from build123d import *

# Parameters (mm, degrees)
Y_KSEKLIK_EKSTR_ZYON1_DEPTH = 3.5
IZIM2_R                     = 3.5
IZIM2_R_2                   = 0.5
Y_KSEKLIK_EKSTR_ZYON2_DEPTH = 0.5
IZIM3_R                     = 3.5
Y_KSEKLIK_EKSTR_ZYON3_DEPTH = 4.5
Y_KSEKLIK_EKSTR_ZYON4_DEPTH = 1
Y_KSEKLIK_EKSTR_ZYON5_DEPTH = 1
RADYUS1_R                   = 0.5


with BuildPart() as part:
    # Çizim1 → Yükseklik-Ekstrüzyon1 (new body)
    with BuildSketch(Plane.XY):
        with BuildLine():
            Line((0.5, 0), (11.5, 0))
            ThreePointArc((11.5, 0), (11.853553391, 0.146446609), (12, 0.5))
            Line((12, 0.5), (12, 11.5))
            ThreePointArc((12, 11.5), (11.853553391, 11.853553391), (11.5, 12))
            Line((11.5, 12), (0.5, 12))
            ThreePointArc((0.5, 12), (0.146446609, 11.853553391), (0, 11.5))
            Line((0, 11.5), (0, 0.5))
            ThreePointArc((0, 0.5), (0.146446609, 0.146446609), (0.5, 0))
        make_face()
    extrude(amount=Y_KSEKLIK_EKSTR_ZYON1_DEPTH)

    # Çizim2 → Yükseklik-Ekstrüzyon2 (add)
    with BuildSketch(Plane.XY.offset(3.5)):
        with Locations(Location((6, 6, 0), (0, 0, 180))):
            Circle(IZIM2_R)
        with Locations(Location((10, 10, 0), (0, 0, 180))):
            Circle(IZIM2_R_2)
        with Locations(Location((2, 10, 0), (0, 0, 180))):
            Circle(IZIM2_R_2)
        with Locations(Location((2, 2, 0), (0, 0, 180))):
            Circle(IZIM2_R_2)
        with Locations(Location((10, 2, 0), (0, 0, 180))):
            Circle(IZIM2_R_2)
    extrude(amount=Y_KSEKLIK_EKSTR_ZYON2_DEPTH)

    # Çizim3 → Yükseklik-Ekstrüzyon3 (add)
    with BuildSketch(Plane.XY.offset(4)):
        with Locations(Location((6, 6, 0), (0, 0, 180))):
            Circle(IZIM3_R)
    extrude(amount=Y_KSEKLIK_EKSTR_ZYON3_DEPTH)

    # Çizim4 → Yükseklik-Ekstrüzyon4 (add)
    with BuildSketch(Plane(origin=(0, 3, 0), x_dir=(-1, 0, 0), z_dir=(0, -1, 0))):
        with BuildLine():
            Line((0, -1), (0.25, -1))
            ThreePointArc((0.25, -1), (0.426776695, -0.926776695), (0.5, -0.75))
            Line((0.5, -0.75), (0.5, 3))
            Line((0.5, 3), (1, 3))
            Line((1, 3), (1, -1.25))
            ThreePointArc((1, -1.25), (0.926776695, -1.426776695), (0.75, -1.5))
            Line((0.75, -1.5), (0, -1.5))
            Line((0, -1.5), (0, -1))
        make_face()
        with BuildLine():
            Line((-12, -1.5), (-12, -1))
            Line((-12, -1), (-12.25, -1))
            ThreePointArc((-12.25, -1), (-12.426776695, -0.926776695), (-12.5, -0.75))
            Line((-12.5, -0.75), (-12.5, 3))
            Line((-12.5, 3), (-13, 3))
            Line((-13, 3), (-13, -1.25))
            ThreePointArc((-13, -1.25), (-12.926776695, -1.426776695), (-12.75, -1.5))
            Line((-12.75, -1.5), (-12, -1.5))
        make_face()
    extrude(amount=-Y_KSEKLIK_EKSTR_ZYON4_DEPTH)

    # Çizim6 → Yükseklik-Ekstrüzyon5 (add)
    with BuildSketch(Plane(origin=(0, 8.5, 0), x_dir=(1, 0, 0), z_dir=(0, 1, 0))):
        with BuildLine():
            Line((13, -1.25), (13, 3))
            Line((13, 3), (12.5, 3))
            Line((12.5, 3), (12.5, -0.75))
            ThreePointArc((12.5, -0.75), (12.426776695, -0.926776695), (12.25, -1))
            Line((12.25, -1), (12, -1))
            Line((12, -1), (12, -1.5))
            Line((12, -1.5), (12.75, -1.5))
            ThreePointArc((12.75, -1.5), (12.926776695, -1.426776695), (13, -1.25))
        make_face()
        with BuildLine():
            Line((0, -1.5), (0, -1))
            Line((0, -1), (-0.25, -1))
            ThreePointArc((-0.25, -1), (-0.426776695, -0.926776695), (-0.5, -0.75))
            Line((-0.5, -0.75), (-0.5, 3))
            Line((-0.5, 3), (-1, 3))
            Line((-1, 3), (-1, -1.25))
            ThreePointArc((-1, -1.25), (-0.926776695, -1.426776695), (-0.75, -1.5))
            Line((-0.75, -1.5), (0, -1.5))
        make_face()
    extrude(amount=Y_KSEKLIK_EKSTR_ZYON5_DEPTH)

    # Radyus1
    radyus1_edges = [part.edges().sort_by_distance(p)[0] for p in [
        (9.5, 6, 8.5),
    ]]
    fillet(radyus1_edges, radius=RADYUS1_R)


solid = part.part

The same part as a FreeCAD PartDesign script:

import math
import FreeCAD as App
import Part
import Sketcher

V = App.Vector


def edges_at(feature, points):
    """Names of the edges that pass closest to the given points."""
    edges = feature.Shape.Edges
    near = lambda p: min(range(len(edges)), key=lambda i: edges[i].distToShape(Part.Vertex(*p))[0])
    return sorted({f"Edge{near(p) + 1}" for p in points})

doc = App.newDocument("Part")
body = doc.addObject("PartDesign::Body", "Body")

# Sketch on XY plane
sketch1 = doc.addObject("Sketcher::SketchObject", "Sketch")
body.addObject(sketch1)
sketch1.AttachmentSupport = (doc.XY_Plane, [""])
sketch1.MapMode = "FlatFace"
sketch1.addGeometry([
    Part.LineSegment(V(0.5, 0, 0), V(11.5, 0, 0)),  # 0
    Part.ArcOfCircle(Part.Circle(V(11.5, 0.5, 0), V(0, 0, 1), 0.5), math.radians(-90), math.radians(0)),  # 1
    Part.LineSegment(V(12, 0.5, 0), V(12, 11.5, 0)),  # 2
    Part.ArcOfCircle(Part.Circle(V(11.5, 11.5, 0), V(0, 0, 1), 0.5), math.radians(0), math.radians(90)),  # 3
    Part.LineSegment(V(11.5, 12, 0), V(0.5, 12, 0)),  # 4
    Part.ArcOfCircle(Part.Circle(V(0.5, 11.5, 0), V(0, 0, 1), 0.5), math.radians(90), math.radians(180)),  # 5
    Part.LineSegment(V(0, 11.5, 0), V(0, 0.5, 0)),  # 6
    Part.ArcOfCircle(Part.Circle(V(0.5, 0.5, 0), V(0, 0, 1), 0.5), math.radians(180), math.radians(270)),  # 7
], False)
sketch1.addConstraint([
    Sketcher.Constraint("Tangent", 0, 2, 1, 1),
    Sketcher.Constraint("Tangent", 1, 2, 2, 1),
    Sketcher.Constraint("Tangent", 2, 2, 3, 1),
    Sketcher.Constraint("Tangent", 3, 2, 4, 1),
    Sketcher.Constraint("Tangent", 4, 2, 5, 1),
    Sketcher.Constraint("Tangent", 5, 2, 6, 1),
    Sketcher.Constraint("Tangent", 6, 2, 7, 1),
    Sketcher.Constraint("Tangent", 7, 2, 0, 1),
    Sketcher.Constraint("Horizontal", 0),
    Sketcher.Constraint("Vertical", 2),
    Sketcher.Constraint("Horizontal", 4),
    Sketcher.Constraint("Vertical", 6),
    Sketcher.Constraint("Equal", 1, 3),
    Sketcher.Constraint("Equal", 3, 5),
    Sketcher.Constraint("Equal", 5, 7),
    Sketcher.Constraint("PointOnObject", 0, 2, -1),
    Sketcher.Constraint("PointOnObject", 5, 2, -2),
    Sketcher.Constraint("Equal", 4, 2),
    Sketcher.Constraint("Radius", 1, 0.5),
    Sketcher.Constraint("DistanceX", 0, 1, 0, 2, 11.0),
])
pad1 = doc.addObject("PartDesign::Pad", "Pad")
body.addObject(pad1)
pad1.Profile = sketch1
pad1.Length = 3.5

# Sketch on XY plane
sketch2 = doc.addObject("Sketcher::SketchObject", "Sketch001")
body.addObject(sketch2)
sketch2.AttachmentSupport = (doc.XY_Plane, [""])
sketch2.MapMode = "FlatFace"
sketch2.AttachmentOffset = App.Placement(V(0, 0, 3.5), App.Rotation())
sketch2.addGeometry([
    Part.Circle(V(6, 6, 0), V(0, 0, 1), 3.5),  # 0
    Part.Circle(V(10, 10, 0), V(0, 0, 1), 0.5),  # 1
    Part.Circle(V(2, 10, 0), V(0, 0, 1), 0.5),  # 2
    Part.Circle(V(2, 2, 0), V(0, 0, 1), 0.5),  # 3
    Part.Circle(V(10, 2, 0), V(0, 0, 1), 0.5),  # 4
], False)
sketch2.addConstraint([
    Sketcher.Constraint("Equal", 1, 2),
    Sketcher.Constraint("Equal", 2, 3),
    Sketcher.Constraint("Equal", 3, 4),
    Sketcher.Constraint("Horizontal", 1, 3, 2, 3),
    Sketcher.Constraint("Horizontal", 3, 3, 4, 3),
    Sketcher.Constraint("Vertical", 2, 3, 3, 3),
    Sketcher.Constraint("Vertical", 1, 3, 4, 3),
    Sketcher.Constraint("Diameter", 0, 7.0),
    Sketcher.Constraint("Diameter", 1, 1.0),
    Sketcher.Constraint("DistanceX", -1, 1, 0, 3, 6.0),
    Sketcher.Constraint("DistanceY", -1, 1, 0, 3, 6.0),
    Sketcher.Constraint("DistanceX", -1, 1, 1, 3, 10.0),
    Sketcher.Constraint("DistanceY", -1, 1, 1, 3, 10.0),
    Sketcher.Constraint("DistanceX", -1, 1, 2, 3, 2.0),
    Sketcher.Constraint("DistanceY", -1, 1, 3, 3, 2.0),
])
pad2 = doc.addObject("PartDesign::Pad", "Pad001")
body.addObject(pad2)
pad2.Profile = sketch2
pad2.Length = 0.5

# Sketch on XY plane
sketch3 = doc.addObject("Sketcher::SketchObject", "Sketch002")
body.addObject(sketch3)
sketch3.AttachmentSupport = (doc.XY_Plane, [""])
sketch3.MapMode = "FlatFace"
sketch3.AttachmentOffset = App.Placement(V(0, 0, 4), App.Rotation())
sketch3.addGeometry(Part.Circle(V(6, 6, 0), V(0, 0, 1), 3.5), False)
sketch3.addConstraint([
    Sketcher.Constraint("Diameter", 0, 7.0),
    Sketcher.Constraint("DistanceX", -1, 1, 0, 3, 6.0),
    Sketcher.Constraint("DistanceY", -1, 1, 0, 3, 6.0),
])
pad3 = doc.addObject("PartDesign::Pad", "Pad002")
body.addObject(pad3)
pad3.Profile = sketch3
pad3.Length = 4.5

# Sketch on XZ plane
sketch4 = doc.addObject("Sketcher::SketchObject", "Sketch003")
body.addObject(sketch4)
sketch4.AttachmentSupport = (doc.XZ_Plane, [""])
sketch4.MapMode = "FlatFace"
sketch4.AttachmentOffset = App.Placement(V(0, 0, -3), App.Rotation())
sketch4.addGeometry([
    Part.LineSegment(V(-0.25, 1, 0), V(0, 1, 0)),  # 0
    Part.LineSegment(V(0, 1, 0), V(0, 1.5, 0)),  # 1
    Part.LineSegment(V(0, 1.5, 0), V(-0.75, 1.5, 0)),  # 2
    Part.ArcOfCircle(Part.Circle(V(-0.75, 1.25, 0), V(0, 0, 1), 0.25), math.radians(90), math.radians(180)),  # 3
    Part.LineSegment(V(-1, 1.25, 0), V(-1, -3, 0)),  # 4
    Part.LineSegment(V(-1, -3, 0), V(-0.5, -3, 0)),  # 5
    Part.LineSegment(V(-0.5, -3, 0), V(-0.5, 0.75, 0)),  # 6
    Part.ArcOfCircle(Part.Circle(V(-0.25, 0.75, 0), V(0, 0, 1), 0.25), math.radians(90), math.radians(180)),  # 7
    Part.LineSegment(V(12, 1.5, 0), V(12, 1, 0)),  # 8
    Part.LineSegment(V(12, 1, 0), V(12.25, 1, 0)),  # 9
    Part.ArcOfCircle(Part.Circle(V(12.25, 0.75, 0), V(0, 0, 1), 0.25), math.radians(0), math.radians(90)),  # 10
    Part.LineSegment(V(12.5, 0.75, 0), V(12.5, -3, 0)),  # 11
    Part.LineSegment(V(12.5, -3, 0), V(13, -3, 0)),  # 12
    Part.LineSegment(V(13, -3, 0), V(13, 1.25, 0)),  # 13
    Part.ArcOfCircle(Part.Circle(V(12.75, 1.25, 0), V(0, 0, 1), 0.25), math.radians(0), math.radians(90)),  # 14
    Part.LineSegment(V(12.75, 1.5, 0), V(12, 1.5, 0)),  # 15
], False)
sketch4.addConstraint([
    Sketcher.Constraint("Coincident", 0, 2, 1, 1),
    Sketcher.Constraint("Coincident", 1, 2, 2, 1),
    Sketcher.Constraint("Tangent", 2, 2, 3, 1),
    Sketcher.Constraint("Tangent", 3, 2, 4, 1),
    Sketcher.Constraint("Coincident", 4, 2, 5, 1),
    Sketcher.Constraint("Coincident", 5, 2, 6, 1),
    Sketcher.Constraint("Tangent", 6, 2, 7, 2),
    Sketcher.Constraint("Tangent", 7, 1, 0, 1),
    Sketcher.Constraint("Coincident", 8, 2, 9, 1),
    Sketcher.Constraint("Tangent", 9, 2, 10, 2),
    Sketcher.Constraint("Tangent", 10, 1, 11, 1),
    Sketcher.Constraint("Coincident", 11, 2, 12, 1),
    Sketcher.Constraint("Coincident", 12, 2, 13, 1),
    Sketcher.Constraint("Tangent", 13, 2, 14, 1),
    Sketcher.Constraint("Tangent", 14, 2, 15, 1),
    Sketcher.Constraint("Coincident", 15, 2, 8, 1),
    Sketcher.Constraint("Horizontal", 0),
    Sketcher.Constraint("Vertical", 1),
    Sketcher.Constraint("Horizontal", 2),
    Sketcher.Constraint("Vertical", 4),
    Sketcher.Constraint("Horizontal", 5),
    Sketcher.Constraint("Vertical", 6),
    Sketcher.Constraint("Vertical", 8),
    Sketcher.Constraint("Horizontal", 9),
    Sketcher.Constraint("Vertical", 11),
    Sketcher.Constraint("Horizontal", 12),
    Sketcher.Constraint("Vertical", 13),
    Sketcher.Constraint("Horizontal", 15),
    Sketcher.Constraint("Equal", 3, 7),
    Sketcher.Constraint("Equal", 7, 10),
    Sketcher.Constraint("Equal", 10, 14),
    Sketcher.Constraint("PointOnObject", 0, 2, -2),
    Sketcher.Constraint("Horizontal", 7, 3, 10, 3),
    Sketcher.Constraint("Horizontal", 3, 3, 14, 3),
    Sketcher.Constraint("Horizontal", 5, 2, 11, 2),
    Sketcher.Constraint("Equal", 0, 9),
    Sketcher.Constraint("Equal", 5, 12),
    Sketcher.Constraint("Equal", 12, 1),
    Sketcher.Constraint("Radius", 3, 0.25),
    Sketcher.Constraint("DistanceX", 5, 1, 5, 2, 0.5),
    Sketcher.Constraint("DistanceY", -1, 1, 0, 2, 1.0),
    Sketcher.Constraint("DistanceX", 3, 2, -1, 1, 1.0),
    Sketcher.Constraint("DistanceY", 4, 2, -1, 1, 3.0),
    Sketcher.Constraint("DistanceX", -1, 1, 8, 2, 12.0),
])
pad4 = doc.addObject("PartDesign::Pad", "Pad003")
body.addObject(pad4)
pad4.Profile = sketch4
pad4.Length = 1
pad4.Reversed = True

# Sketch on XZ plane
sketch5 = doc.addObject("Sketcher::SketchObject", "Sketch004")
body.addObject(sketch5)
sketch5.AttachmentSupport = (doc.XZ_Plane, [""])
sketch5.MapMode = "FlatFace"
sketch5.AttachmentOffset = App.Placement(V(0, 0, -8.5), App.Rotation())
sketch5.addGeometry([
    Part.LineSegment(V(13, 1.25, 0), V(13, -3, 0)),  # 0
    Part.LineSegment(V(13, -3, 0), V(12.5, -3, 0)),  # 1
    Part.LineSegment(V(12.5, -3, 0), V(12.5, 0.75, 0)),  # 2
    Part.ArcOfCircle(Part.Circle(V(12.25, 0.75, 0), V(0, 0, 1), 0.25), math.radians(0), math.radians(90)),  # 3
    Part.LineSegment(V(12.25, 1, 0), V(12, 1, 0)),  # 4
    Part.LineSegment(V(12, 1, 0), V(12, 1.5, 0)),  # 5
    Part.LineSegment(V(12, 1.5, 0), V(12.75, 1.5, 0)),  # 6
    Part.ArcOfCircle(Part.Circle(V(12.75, 1.25, 0), V(0, 0, 1), 0.25), math.radians(0), math.radians(90)),  # 7
    Part.LineSegment(V(0, 1.5, 0), V(0, 1, 0)),  # 8
    Part.LineSegment(V(0, 1, 0), V(-0.25, 1, 0)),  # 9
    Part.ArcOfCircle(Part.Circle(V(-0.25, 0.75, 0), V(0, 0, 1), 0.25), math.radians(90), math.radians(180)),  # 10
    Part.LineSegment(V(-0.5, 0.75, 0), V(-0.5, -3, 0)),  # 11
    Part.LineSegment(V(-0.5, -3, 0), V(-1, -3, 0)),  # 12
    Part.LineSegment(V(-1, -3, 0), V(-1, 1.25, 0)),  # 13
    Part.ArcOfCircle(Part.Circle(V(-0.75, 1.25, 0), V(0, 0, 1), 0.25), math.radians(90), math.radians(180)),  # 14
    Part.LineSegment(V(-0.75, 1.5, 0), V(0, 1.5, 0)),  # 15
], False)
sketch5.addConstraint([
    Sketcher.Constraint("Coincident", 0, 2, 1, 1),
    Sketcher.Constraint("Coincident", 1, 2, 2, 1),
    Sketcher.Constraint("Tangent", 2, 2, 3, 1),
    Sketcher.Constraint("Tangent", 3, 2, 4, 1),
    Sketcher.Constraint("Coincident", 4, 2, 5, 1),
    Sketcher.Constraint("Coincident", 5, 2, 6, 1),
    Sketcher.Constraint("Tangent", 6, 2, 7, 2),
    Sketcher.Constraint("Tangent", 7, 1, 0, 1),
    Sketcher.Constraint("Coincident", 8, 2, 9, 1),
    Sketcher.Constraint("Tangent", 9, 2, 10, 1),
    Sketcher.Constraint("Tangent", 10, 2, 11, 1),
    Sketcher.Constraint("Coincident", 11, 2, 12, 1),
    Sketcher.Constraint("Coincident", 12, 2, 13, 1),
    Sketcher.Constraint("Tangent", 13, 2, 14, 2),
    Sketcher.Constraint("Tangent", 14, 1, 15, 1),
    Sketcher.Constraint("Coincident", 15, 2, 8, 1),
    Sketcher.Constraint("Vertical", 0),
    Sketcher.Constraint("Horizontal", 1),
    Sketcher.Constraint("Vertical", 2),
    Sketcher.Constraint("Horizontal", 4),
    Sketcher.Constraint("Vertical", 5),
    Sketcher.Constraint("Horizontal", 6),
    Sketcher.Constraint("Vertical", 8),
    Sketcher.Constraint("Horizontal", 9),
    Sketcher.Constraint("Vertical", 11),
    Sketcher.Constraint("Horizontal", 12),
    Sketcher.Constraint("Vertical", 13),
    Sketcher.Constraint("Horizontal", 15),
    Sketcher.Constraint("Equal", 3, 7),
    Sketcher.Constraint("Equal", 7, 10),
    Sketcher.Constraint("Equal", 10, 14),
    Sketcher.Constraint("PointOnObject", 8, 2, -2),
    Sketcher.Constraint("Horizontal", 3, 3, 10, 3),
    Sketcher.Constraint("Horizontal", 7, 3, 14, 3),
    Sketcher.Constraint("Horizontal", 1, 2, 11, 2),
    Sketcher.Constraint("Equal", 4, 9),
    Sketcher.Constraint("Equal", 1, 12),
    Sketcher.Constraint("Equal", 12, 5),
    Sketcher.Constraint("Radius", 3, 0.25),
    Sketcher.Constraint("DistanceX", 1, 2, 1, 1, 0.5),
    Sketcher.Constraint("DistanceX", -1, 1, 0, 2, 13.0),
    Sketcher.Constraint("DistanceY", 0, 2, -1, 1, 3.0),
    Sketcher.Constraint("DistanceY", -1, 1, 3, 2, 1.0),
    Sketcher.Constraint("DistanceX", -1, 1, 4, 2, 12.0),
])
pad5 = doc.addObject("PartDesign::Pad", "Pad004")
body.addObject(pad5)
pad5.Profile = sketch5
pad5.Length = 1
pad5.Reversed = True
doc.recompute()

fillet = doc.addObject("PartDesign::Fillet", "Fillet")
body.addObject(fillet)
fillet.Base = (pad5, edges_at(pad5, [(9.5, 6, 8.5)]))
fillet.Radius = 0.5

doc.recompute()
